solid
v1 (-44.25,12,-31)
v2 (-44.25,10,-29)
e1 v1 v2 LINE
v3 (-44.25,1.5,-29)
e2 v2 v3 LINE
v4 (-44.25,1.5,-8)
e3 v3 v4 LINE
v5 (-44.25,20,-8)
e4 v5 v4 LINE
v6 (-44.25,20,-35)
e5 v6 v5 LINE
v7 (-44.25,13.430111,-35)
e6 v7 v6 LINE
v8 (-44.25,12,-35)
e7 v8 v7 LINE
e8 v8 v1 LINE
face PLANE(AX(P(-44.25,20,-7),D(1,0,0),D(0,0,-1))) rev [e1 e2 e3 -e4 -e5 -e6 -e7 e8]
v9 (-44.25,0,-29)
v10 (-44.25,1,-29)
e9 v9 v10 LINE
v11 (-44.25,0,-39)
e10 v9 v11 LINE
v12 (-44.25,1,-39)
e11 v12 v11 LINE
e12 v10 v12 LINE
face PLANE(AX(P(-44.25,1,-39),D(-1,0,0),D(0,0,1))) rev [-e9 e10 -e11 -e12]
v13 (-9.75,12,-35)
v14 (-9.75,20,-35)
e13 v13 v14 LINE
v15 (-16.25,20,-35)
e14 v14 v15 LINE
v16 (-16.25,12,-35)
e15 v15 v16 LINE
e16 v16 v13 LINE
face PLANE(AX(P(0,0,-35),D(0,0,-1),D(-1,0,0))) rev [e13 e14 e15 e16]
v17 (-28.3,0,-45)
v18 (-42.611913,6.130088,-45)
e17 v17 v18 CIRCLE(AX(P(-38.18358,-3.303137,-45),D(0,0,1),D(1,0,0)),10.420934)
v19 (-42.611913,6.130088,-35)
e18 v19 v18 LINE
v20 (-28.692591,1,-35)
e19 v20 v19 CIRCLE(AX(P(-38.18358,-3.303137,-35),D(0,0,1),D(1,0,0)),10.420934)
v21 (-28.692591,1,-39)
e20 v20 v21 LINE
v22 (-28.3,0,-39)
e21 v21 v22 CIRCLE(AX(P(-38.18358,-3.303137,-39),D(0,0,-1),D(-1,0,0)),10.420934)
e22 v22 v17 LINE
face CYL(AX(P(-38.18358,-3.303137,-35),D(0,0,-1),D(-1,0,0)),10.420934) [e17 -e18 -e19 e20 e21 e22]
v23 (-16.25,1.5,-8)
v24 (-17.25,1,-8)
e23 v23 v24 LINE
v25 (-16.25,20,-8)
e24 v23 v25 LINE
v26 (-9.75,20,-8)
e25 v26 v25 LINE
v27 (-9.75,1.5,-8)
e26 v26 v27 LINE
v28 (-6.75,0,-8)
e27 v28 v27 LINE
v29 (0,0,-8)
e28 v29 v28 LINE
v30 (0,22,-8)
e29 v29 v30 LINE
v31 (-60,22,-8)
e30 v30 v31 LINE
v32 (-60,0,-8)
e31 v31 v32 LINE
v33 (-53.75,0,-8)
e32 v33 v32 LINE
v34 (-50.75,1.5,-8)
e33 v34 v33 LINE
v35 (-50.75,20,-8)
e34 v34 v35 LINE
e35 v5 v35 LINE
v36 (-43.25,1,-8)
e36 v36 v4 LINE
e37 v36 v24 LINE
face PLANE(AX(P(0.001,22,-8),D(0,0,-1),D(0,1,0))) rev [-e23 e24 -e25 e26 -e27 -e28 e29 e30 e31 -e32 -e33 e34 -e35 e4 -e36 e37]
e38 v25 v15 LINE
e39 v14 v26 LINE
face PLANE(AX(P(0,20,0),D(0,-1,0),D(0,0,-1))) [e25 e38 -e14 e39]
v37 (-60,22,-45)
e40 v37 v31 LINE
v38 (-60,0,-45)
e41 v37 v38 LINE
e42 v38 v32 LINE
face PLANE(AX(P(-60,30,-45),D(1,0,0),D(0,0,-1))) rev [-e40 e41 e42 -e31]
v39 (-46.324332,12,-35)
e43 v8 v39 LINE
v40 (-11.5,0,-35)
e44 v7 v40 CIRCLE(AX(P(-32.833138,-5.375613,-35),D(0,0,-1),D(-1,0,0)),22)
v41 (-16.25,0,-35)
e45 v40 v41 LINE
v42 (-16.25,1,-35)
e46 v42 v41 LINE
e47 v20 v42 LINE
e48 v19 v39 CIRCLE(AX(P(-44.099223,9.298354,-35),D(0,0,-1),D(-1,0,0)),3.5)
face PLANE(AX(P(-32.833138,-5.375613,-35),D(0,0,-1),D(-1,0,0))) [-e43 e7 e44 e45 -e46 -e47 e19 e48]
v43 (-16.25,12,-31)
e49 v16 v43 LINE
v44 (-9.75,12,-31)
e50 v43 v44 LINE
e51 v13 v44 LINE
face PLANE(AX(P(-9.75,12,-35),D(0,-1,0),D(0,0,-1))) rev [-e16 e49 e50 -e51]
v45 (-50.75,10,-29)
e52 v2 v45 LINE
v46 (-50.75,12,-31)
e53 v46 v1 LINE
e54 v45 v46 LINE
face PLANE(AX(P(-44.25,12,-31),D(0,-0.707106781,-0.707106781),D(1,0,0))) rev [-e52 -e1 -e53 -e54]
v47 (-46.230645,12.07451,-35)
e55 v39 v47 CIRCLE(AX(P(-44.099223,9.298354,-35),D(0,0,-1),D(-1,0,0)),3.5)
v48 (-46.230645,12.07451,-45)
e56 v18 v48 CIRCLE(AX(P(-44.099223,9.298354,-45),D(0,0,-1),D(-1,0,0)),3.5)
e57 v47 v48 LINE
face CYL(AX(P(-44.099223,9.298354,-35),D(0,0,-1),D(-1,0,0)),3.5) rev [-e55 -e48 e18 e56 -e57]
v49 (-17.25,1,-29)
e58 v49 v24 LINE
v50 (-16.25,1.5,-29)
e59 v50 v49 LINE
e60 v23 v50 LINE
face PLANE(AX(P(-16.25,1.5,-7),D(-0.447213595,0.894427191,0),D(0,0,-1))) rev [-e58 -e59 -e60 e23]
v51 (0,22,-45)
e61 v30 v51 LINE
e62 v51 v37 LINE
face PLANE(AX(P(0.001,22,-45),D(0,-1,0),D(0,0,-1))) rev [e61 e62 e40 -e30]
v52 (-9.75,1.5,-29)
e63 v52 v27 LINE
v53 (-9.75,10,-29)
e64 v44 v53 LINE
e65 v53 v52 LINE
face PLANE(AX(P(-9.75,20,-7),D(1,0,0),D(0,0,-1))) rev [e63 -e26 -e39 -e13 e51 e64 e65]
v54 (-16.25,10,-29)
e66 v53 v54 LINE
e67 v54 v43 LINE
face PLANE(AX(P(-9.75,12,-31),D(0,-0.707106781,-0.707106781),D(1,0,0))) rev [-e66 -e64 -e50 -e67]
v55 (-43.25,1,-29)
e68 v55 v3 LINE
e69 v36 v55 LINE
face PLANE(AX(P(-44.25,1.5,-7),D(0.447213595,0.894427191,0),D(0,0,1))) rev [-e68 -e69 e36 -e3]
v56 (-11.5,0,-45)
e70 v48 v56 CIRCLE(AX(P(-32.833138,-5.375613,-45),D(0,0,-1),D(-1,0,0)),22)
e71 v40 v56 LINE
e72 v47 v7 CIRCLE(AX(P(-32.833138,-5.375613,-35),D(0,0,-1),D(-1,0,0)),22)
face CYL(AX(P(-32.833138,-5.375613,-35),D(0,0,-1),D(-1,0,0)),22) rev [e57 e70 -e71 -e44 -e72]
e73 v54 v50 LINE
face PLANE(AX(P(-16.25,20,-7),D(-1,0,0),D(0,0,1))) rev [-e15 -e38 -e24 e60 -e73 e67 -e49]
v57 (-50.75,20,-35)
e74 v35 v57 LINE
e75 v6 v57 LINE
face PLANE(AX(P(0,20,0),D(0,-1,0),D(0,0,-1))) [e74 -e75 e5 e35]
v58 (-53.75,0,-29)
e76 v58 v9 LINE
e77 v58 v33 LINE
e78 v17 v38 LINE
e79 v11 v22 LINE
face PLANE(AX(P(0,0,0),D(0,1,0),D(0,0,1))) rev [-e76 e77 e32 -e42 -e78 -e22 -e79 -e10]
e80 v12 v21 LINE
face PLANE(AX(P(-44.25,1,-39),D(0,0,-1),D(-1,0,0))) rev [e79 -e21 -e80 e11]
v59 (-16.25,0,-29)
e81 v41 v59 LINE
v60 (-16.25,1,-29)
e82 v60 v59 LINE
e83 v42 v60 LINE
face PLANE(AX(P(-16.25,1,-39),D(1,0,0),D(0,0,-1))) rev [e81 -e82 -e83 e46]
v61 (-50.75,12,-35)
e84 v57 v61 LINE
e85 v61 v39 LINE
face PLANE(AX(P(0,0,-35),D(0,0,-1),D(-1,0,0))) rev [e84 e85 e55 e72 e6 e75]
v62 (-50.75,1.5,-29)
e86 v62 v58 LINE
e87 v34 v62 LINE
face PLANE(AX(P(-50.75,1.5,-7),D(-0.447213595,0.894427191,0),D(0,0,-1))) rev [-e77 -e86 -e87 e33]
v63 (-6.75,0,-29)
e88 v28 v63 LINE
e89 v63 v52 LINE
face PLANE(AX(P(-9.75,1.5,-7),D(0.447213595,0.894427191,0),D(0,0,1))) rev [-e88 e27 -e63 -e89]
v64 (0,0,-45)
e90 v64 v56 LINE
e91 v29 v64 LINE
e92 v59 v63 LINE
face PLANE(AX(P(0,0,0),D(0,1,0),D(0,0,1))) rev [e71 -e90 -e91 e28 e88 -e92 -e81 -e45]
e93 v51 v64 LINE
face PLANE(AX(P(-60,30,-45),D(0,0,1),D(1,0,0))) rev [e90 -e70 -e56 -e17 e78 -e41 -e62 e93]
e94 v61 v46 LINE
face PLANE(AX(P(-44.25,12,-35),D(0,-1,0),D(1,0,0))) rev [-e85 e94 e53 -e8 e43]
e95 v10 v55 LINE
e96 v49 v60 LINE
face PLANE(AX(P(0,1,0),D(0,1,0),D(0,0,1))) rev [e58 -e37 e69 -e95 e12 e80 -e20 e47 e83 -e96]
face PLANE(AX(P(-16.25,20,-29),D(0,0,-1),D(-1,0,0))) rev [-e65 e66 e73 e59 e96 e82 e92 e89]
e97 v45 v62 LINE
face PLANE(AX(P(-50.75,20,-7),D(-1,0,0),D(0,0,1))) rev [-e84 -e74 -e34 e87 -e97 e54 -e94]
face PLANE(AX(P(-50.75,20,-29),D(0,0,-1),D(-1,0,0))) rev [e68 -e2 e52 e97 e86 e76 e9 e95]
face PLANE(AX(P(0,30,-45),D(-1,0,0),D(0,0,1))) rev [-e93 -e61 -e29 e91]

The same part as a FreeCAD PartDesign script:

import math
import FreeCAD as App
import Part
import Sketcher


def edges_at(feature, points):
    """Names of the edges that pass closest to the given points."""
    edges = feature.Shape.Edges
    near = lambda p: min(range(len(edges)), key=lambda i: edges[i].distToShape(Part.Vertex(*p))[0])
    return sorted({f"Edge{near(p) + 1}" for p in points})


def add_polygon(sketch, points):
    """Adds a closed chain of lines whose ends are joined by coincident constraints."""
    first, n = sketch.GeometryCount, len(points)
    for a, b in zip(points, points[1:] + points[:1]):
        sketch.addGeometry(Part.LineSegment(App.Vector(*a, 0), App.Vector(*b, 0)), False)
    for i in range(n):
        sketch.addConstraint(Sketcher.Constraint("Coincident", first + i, 2, first + (i + 1) % n, 1))

doc = App.newDocument("Part")
body = doc.addObject("PartDesign::Body", "Body")

sketch1 = body.newObject("Sketcher::SketchObject", "Sketch")
sketch1.AttachmentSupport = (doc.getObject("XZ_Plane"), [""])
sketch1.MapMode = "FlatFace"
add_polygon(sketch1, [(-60, -45), (-60, 0), (0, 0), (0, -45)])
sketch1.addConstraint(Sketcher.Constraint("Vertical", 0))
sketch1.addConstraint(Sketcher.Constraint("Horizontal", 1))
sketch1.addConstraint(Sketcher.Constraint("Vertical", 2))
sketch1.addConstraint(Sketcher.Constraint("Horizontal", 3))
sketch1.addConstraint(Sketcher.Constraint("Coincident", 1, 2, -1, 1))
sketch1.addConstraint(Sketcher.Constraint("DistanceX", 1, 1, 1, 2, 60.0))
sketch1.addConstraint(Sketcher.Constraint("DistanceY", 0, 1, 0, 2, 45.0))
pad1 = body.newObject("PartDesign::Pad", "Pad")
pad1.Profile = sketch1
pad1.Length = 30
pad1.Reversed = True

sketch2 = body.newObject("Sketcher::SketchObject", "Sketch001")
sketch2.AttachmentSupport = (doc.getObject("XZ_Plane"), [""])
sketch2.MapMode = "FlatFace"
add_polygon(sketch2, [(-44.25, -29), (-44.25, -7), (-50.75, -7), (-50.75, -29)])
add_polygon(sketch2, [(-9.75, -29), (-9.75, -7), (-16.25, -7), (-16.25, -29)])
sketch2.addConstraint(Sketcher.Constraint("Vertical", 0))
sketch2.addConstraint(Sketcher.Constraint("Horizontal", 1))
sketch2.addConstraint(Sketcher.Constraint("Vertical", 2))
sketch2.addConstraint(Sketcher.Constraint("Horizontal", 3))
sketch2.addConstraint(Sketcher.Constraint("Vertical", 4))
sketch2.addConstraint(Sketcher.Constraint("Horizontal", 5))
sketch2.addConstraint(Sketcher.Constraint("Vertical", 6))
sketch2.addConstraint(Sketcher.Constraint("Horizontal", 7))
sketch2.addConstraint(Sketcher.Constraint("Horizontal", 1, 2, 4, 2))
sketch2.addConstraint(Sketcher.Constraint("Horizontal", 3, 2, 6, 2))
sketch2.addConstraint(Sketcher.Constraint("Equal", 3, 5))
sketch2.addConstraint(Sketcher.Constraint("DistanceY", 0, 1, 0, 2, 22.0))
sketch2.addConstraint(Sketcher.Constraint("DistanceX", 1, 2, 1, 1, 6.5))
sketch2.addConstraint(Sketcher.Constraint("DistanceY", 0, 2, -1, 1, 7.0))
sketch2.addConstraint(Sketcher.Constraint("DistanceX", 1, 2, 4, 2, 41.0))
sketch2.addConstraint(Sketcher.Constraint("DistanceX", 0, 2, -1, 1, 44.25))
pocket1 = body.newObject("PartDesign::Pocket", "Pocket")
pocket1.Profile = sketch2
pocket1.Length = 20

sketch3 = body.newObject("Sketcher::SketchObject", "Sketch002")
sketch3.AttachmentSupport = (doc.getObject("XY_Plane"), [""])
sketch3.MapMode = "FlatFace"
sketch3.AttachmentOffset = App.Placement(App.Vector(0, 0, -45), App.Rotation())
sketch3.addGeometry(Part.LineSegment(App.Vector(-11.5, 0, 0), App.Vector(-28.3, 0, 0)), False)
sketch3.addGeometry(Part.ArcOfCircle(Part.Circle(App.Vector(-38.18358, -3.303137, 0), App.Vector(0, 0, 1), 10.420934), math.radians(18.47986), math.radians(115.147235)), False)
sketch3.addGeometry(Part.ArcOfCircle(Part.Circle(App.Vector(-44.099223, 9.298354, 0), App.Vector(0, 0, 1), 3.5), math.radians(127.515612), math.radians(295.147235)), False)
sketch3.addGeometry(Part.ArcOfCircle(Part.Circle(App.Vector(-32.833138, -5.375613, 0), App.Vector(0, 0, 1), 22), math.radians(14.143191), math.radians(127.515612)), False)
sketch3.addConstraint(Sketcher.Constraint("Coincident", 0, 2, 1, 1))
sketch3.addConstraint(Sketcher.Constraint("Tangent", 1, 2, 2, 2))
sketch3.addConstraint(Sketcher.Constraint("Tangent", 2, 1, 3, 2))
sketch3.addConstraint(Sketcher.Constraint("Coincident", 3, 1, 0, 1))
sketch3.addConstraint(Sketcher.Constraint("Horizontal", 0))
sketch3.addConstraint(Sketcher.Constraint("PointOnObject", 0, 2, -1))
sketch3.addConstraint(Sketcher.Constraint("Radius", 3, 22.0))
sketch3.addConstraint(Sketcher.Constraint("Radius", 2, 3.5))
sketch3.addConstraint(Sketcher.Constraint("DistanceX", 0, 2, 0, 1, 16.8))
sketch3.addConstraint(Sketcher.Constraint("DistanceX", 0, 2, -1, 1, 28.3))
sketch3.addConstraint(Sketcher.Constraint("Radius", 1, 10.420934))
sketch3.addConstraint(Sketcher.Constraint("DistanceY", 3, 3, 1, 2, 11.505702))
sketch3.addConstraint(Sketcher.Constraint("DistanceX", 1, 3, -1, 1, 38.18358))
pocket2 = body.newObject("PartDesign::Pocket", "Pocket001")
pocket2.Profile = sketch3
pocket2.Length = 10
pocket2.Reversed = True
doc.recompute()

chamfer = body.newObject("PartDesign::Chamfer", "Chamfer")
chamfer.Base = (pocket2, edges_at(pocket2, [
    (-50.75, 0, -18),
    (-44.25, 0, -18),
    (-47.5, 0, -7),
    (-16.25, 0, -18),
    (-9.75, 0, -18),
    (-13, 0, -7),
]))
chamfer.ChamferType = "Two distances"
chamfer.Size = 3
chamfer.Size2 = 1.5

sketch4 = body.newObject("Sketcher::SketchObject", "Sketch003")
sketch4.AttachmentSupport = (doc.getObject("YZ_Plane"), [""])
sketch4.MapMode = "FlatFace"
sketch4.AttachmentOffset = App.Placement(App.Vector(0, 0, -60), App.Rotation())
add_polygon(sketch4, [(30, 0), (30, -45), (22, -45), (22, -8), (0, -8), (0, 0)])
sketch4.addConstraint(Sketcher.Constraint("Vertical", 0))
sketch4.addConstraint(Sketcher.Constraint("Horizontal", 1))
sketch4.addConstraint(Sketcher.Constraint("Vertical", 2))
sketch4.addConstraint(Sketcher.Constraint("Horizontal", 3))
sketch4.addConstraint(Sketcher.Constraint("Vertical", 4))
sketch4.addConstraint(Sketcher.Constraint("Horizontal", 5))
sketch4.addConstraint(Sketcher.Constraint("Coincident", 4, 2, -1, 1))
sketch4.addConstraint(Sketcher.Constraint("Equal", 1, 4))
sketch4.addConstraint(Sketcher.Constraint("DistanceX", 1, 2, 1, 1, 8.0))
sketch4.addConstraint(Sketcher.Constraint("DistanceX", 3, 2, 3, 1, 22.0))
sketch4.addConstraint(Sketcher.Constraint("DistanceY", 0, 2, 0, 1, 45.0))
pocket3 = body.newObject("PartDesign::Pocket", "Pocket002")
pocket3.Profile = sketch4
pocket3.Type = "UpToFirst"
pocket3.Reversed = True

sketch5 = body.newObject("Sketcher::SketchObject", "Sketch004")
sketch5.AttachmentSupport = (doc.getObject("XZ_Plane"), [""])
sketch5.MapMode = "FlatFace"
add_polygon(sketch5, [(-16.25, -39), (-16.25, -8), (-44.25, -8), (-44.25, -39)])
sketch5.addConstraint(Sketcher.Constraint("Vertical", 0))
sketch5.addConstraint(Sketcher.Constraint("Horizontal", 1))
sketch5.addConstraint(Sketcher.Constraint("Vertical", 2))
sketch5.addConstraint(Sketcher.Constraint("Horizontal", 3))
sketch5.addConstraint(Sketcher.Constraint("DistanceX", 1, 2, 1, 1, 28.0))
sketch5.addConstraint(Sketcher.Constraint("DistanceY", 0, 1, 0, 2, 31.0))
sketch5.addConstraint(Sketcher.Constraint("DistanceY", 0, 2, -1, 1, 8.0))
sketch5.addConstraint(Sketcher.Constraint("DistanceX", 0, 2, -1, 1, 16.25))
pocket4 = body.newObject("PartDesign::Pocket", "Pocket003")
pocket4.Profile = sketch5
pocket4.Length = 1

sketch6 = body.newObject("Sketcher::SketchObject", "Sketch005")
sketch6.AttachmentSupport = (doc.getObject("XY_Plane"), [""])
sketch6.MapMode = "FlatFace"
sketch6.AttachmentOffset = App.Placement(App.Vector(0, 0, -29), App.Rotation())
add_polygon(sketch6, [(-16.25, 20), (-16.25, 12), (-9.75, 12), (-9.75, 20)])
add_polygon(sketch6, [(-50.75, 20), (-50.75, 12), (-44.25, 12), (-44.25, 20)])
sketch6.addConstraint(Sketcher.Constraint("Vertical", 0))
sketch6.addConstraint(Sketcher.Constraint("Horizontal", 1))
sketch6.addConstraint(Sketcher.Constraint("Vertical", 2))
sketch6.addConstraint(Sketcher.Constraint("Horizontal", 3))
sketch6.addConstraint(Sketcher.Constraint("Vertical", 4))
sketch6.addConstraint(Sketcher.Constraint("Horizontal", 5))
sketch6.addConstraint(Sketcher.Constraint("Vertical", 6))
sketch6.addConstraint(Sketcher.Constraint("Horizontal", 7))
sketch6.addConstraint(Sketcher.Constraint("Horizontal", 1, 2, 4, 2))
sketch6.addConstraint(Sketcher.Constraint("Horizontal", 3, 2, 6, 2))
sketch6.addConstraint(Sketcher.Constraint("Equal", 3, 5))
sketch6.addConstraint(Sketcher.Constraint("DistanceY", 0, 2, 0, 1, 8.0))
sketch6.addConstraint(Sketcher.Constraint("DistanceX", 1, 1, 1, 2, 6.5))
sketch6.addConstraint(Sketcher.Constraint("DistanceY", -1, 1, 0, 2, 12.0))
sketch6.addConstraint(Sketcher.Constraint("DistanceX", 4, 2, 1, 2, 41.0))
sketch6.addConstraint(Sketcher.Constraint("DistanceX", 0, 2, -1, 1, 16.25))
pocket5 = body.newObject("PartDesign::Pocket", "Pocket004")
pocket5.Profile = sketch6
pocket5.Length = 6
doc.recompute()

chamfer2 = body.newObject("PartDesign::Chamfer", "Chamfer001")
chamfer2.Base = (pocket5, edges_at(pocket5, [(-13, 12, -29), (-47.5, 12, -29)]))
chamfer2.Size = 2

doc.recompute()
